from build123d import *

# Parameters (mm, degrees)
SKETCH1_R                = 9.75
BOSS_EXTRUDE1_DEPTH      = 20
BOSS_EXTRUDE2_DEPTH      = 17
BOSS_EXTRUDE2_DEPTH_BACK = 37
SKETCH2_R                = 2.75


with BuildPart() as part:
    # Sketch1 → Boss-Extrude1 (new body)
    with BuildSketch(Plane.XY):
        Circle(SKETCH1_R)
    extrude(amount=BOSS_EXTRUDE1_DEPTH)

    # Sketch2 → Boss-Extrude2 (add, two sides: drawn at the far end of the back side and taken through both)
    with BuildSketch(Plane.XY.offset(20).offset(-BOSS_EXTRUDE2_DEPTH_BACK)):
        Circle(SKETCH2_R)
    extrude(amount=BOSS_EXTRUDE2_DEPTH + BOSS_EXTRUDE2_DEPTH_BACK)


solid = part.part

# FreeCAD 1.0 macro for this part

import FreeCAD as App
import Part
import Sketcher
from FreeCAD import Vector

doc = App.newDocument("Part")
body = doc.addObject("PartDesign::Body", "Body")

sketch1 = body.newObject("Sketcher::SketchObject", "Sketch")
sketch1.AttachmentSupport = (doc.getObject("XY_Plane"), [""])
sketch1.MapMode = "FlatFace"
sketch1.addGeometry(Part.Circle(Vector(0, 0, 0), Vector(0, 0, 1), 10), False)
sketch1.addConstraint(Sketcher.Constraint("Coincident", 0, 3, -1, 1))
sketch1.addConstraint(Sketcher.Constraint("Diameter", 0, 19.5))
pad1 = body.newObject("PartDesign::Pad", "Pad")
pad1.Profile = sketch1
pad1.Length = 20

sketch2 = body.newObject("Sketcher::SketchObject", "Sketch001")
sketch2.AttachmentSupport = (doc.getObject("XY_Plane"), [""])
sketch2.MapMode = "FlatFace"
sketch2.AttachmentOffset = App.Placement(Vector(0, 0, 20), App.Rotation())
sketch2.addGeometry(Part.Circle(Vector(0, 0, 0), Vector(0, 0, 1), 2.8), False)
sketch2.addConstraint(Sketcher.Constraint("Coincident", 0, 3, -1, 1))
sketch2.addConstraint(Sketcher.Constraint("Diameter", 0, 5.5))
pad2 = body.newObject("PartDesign::Pad", "Pad001")
pad2.Profile = sketch2
pad2.Type = "TwoLengths"
pad2.Length = 17
pad2.Length2 = 37

doc.recompute()
